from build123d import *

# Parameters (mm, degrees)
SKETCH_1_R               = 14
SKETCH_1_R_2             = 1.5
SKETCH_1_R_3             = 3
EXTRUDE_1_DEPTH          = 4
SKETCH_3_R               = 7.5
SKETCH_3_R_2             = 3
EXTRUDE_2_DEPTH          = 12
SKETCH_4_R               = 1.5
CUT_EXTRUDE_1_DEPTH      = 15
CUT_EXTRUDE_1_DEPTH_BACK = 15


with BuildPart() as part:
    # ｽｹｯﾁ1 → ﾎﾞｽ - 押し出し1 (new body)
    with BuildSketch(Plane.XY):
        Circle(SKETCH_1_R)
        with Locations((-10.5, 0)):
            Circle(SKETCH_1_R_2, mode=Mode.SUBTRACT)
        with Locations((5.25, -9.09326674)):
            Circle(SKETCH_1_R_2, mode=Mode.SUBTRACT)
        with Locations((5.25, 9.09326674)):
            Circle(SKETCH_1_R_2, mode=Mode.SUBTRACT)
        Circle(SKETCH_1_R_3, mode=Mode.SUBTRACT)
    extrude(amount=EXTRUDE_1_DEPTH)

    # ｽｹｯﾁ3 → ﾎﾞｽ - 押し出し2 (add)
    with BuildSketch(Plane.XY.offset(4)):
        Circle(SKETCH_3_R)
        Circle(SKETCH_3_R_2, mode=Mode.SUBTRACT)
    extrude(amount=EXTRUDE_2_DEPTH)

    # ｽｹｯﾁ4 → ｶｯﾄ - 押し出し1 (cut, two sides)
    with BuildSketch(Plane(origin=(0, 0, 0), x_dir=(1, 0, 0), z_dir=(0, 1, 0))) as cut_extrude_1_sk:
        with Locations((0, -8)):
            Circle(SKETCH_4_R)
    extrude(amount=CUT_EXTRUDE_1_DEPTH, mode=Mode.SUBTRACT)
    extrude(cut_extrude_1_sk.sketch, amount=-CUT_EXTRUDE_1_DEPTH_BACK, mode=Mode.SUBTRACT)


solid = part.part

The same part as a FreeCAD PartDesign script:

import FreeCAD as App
import Part
import Sketcher
from FreeCAD import Vector
Q = App.Units.Quantity

doc = App.newDocument("Part")
body = doc.addObject("PartDesign::Body", "Body")

# Sketch on XY plane
sketch1 = body.newObject("Sketcher::SketchObject", "Sketch")
sketch1.AttachmentSupport = (doc.getObject("XY_Plane"), [""])
sketch1.MapMode = "FlatFace"
sketch1.addGeometry(Part.Circle(Vector(0, 0, 0), Vector(0, 0, 1), 14), False)
sketch1.addGeometry(Part.Circle(Vector(5.2, -9.1, 0), Vector(0, 0, 1), 1.5), False)
sketch1.addGeometry(Part.Circle(Vector(-10.5, 0, 0), Vector(0, 0, 1), 1.5), False)
sketch1.addGeometry(Part.Circle(Vector(0, 0, 0), Vector(0, 0, 1), 3), False)
sketch1.addGeometry(Part.Circle(Vector(5.2, 9.1, 0), Vector(0, 0, 1), 1.5), False)
sketch1.addConstraint(Sketcher.Constraint("Coincident", 0, 3, -1, 1))
sketch1.addConstraint(Sketcher.Constraint("Coincident", 3, 3, -1, 1))
sketch1.addConstraint(Sketcher.Constraint("Equal", 1, 2))
sketch1.addConstraint(Sketcher.Constraint("Equal", 2, 4))
sketch1.addConstraint(Sketcher.Constraint("Symmetric", 1, 3, 4, 3, -1))
sketch1.addConstraint(Sketcher.Constraint("PointOnObject", 2, 3, -1))
sketch1.addConstraint(Sketcher.Constraint("Diameter", 0, Q("28 mm")))
sketch1.addConstraint(Sketcher.Constraint("Diameter", 1, Q("3 mm")))
sketch1.addConstraint(Sketcher.Constraint("Diameter", 3, Q("6 mm")))
sketch1.addConstraint(Sketcher.Constraint("DistanceX", 2, 3, -1, 1, Q("10.5 mm")))
sketch1.addConstraint(Sketcher.Constraint("DistanceX", -1, 1, 1, 3, Q("5.25 mm")))
sketch1.addConstraint(Sketcher.Constraint("DistanceY", 1, 3, -1, 1, Q("9.093267 mm")))
pad1 = body.newObject("PartDesign::Pad", "Pad")
pad1.Profile = sketch1
pad1.Length = 4

# Sketch on XY plane
sketch2 = body.newObject("Sketcher::SketchObject", "Sketch001")
sketch2.AttachmentSupport = (doc.getObject("XY_Plane"), [""])
sketch2.MapMode = "FlatFace"
sketch2.AttachmentOffset = App.Placement(Vector(0, 0, 4), App.Rotation())
sketch2.addGeometry(Part.Circle(Vector(0, 0, 0), Vector(0, 0, 1), 7.5), False)
sketch2.addGeometry(Part.Circle(Vector(0, 0, 0), Vector(0, 0, 1), 3), False)
sketch2.addConstraint(Sketcher.Constraint("Coincident", 0, 3, -1, 1))
sketch2.addConstraint(Sketcher.Constraint("Coincident", 1, 3, -1, 1))
sketch2.addConstraint(Sketcher.Constraint("Diameter", 0, Q("15 mm")))
sketch2.addConstraint(Sketcher.Constraint("Diameter", 1, Q("6 mm")))
pad2 = body.newObject("PartDesign::Pad", "Pad001")
pad2.Profile = sketch2
pad2.Length = 12

# Sketch on XZ plane
sketch3 = body.newObject("Sketcher::SketchObject", "Sketch002")
sketch3.AttachmentSupport = (doc.getObject("XZ_Plane"), [""])
sketch3.MapMode = "FlatFace"
sketch3.addGeometry(Part.Circle(Vector(0, 8, 0), Vector(0, 0, 1), 1.5), False)
sketch3.addConstraint(Sketcher.Constraint("PointOnObject", 0, 3, -2))
sketch3.addConstraint(Sketcher.Constraint("Diameter", 0, Q("3 mm")))
sketch3.addConstraint(Sketcher.Constraint("DistanceY", -1, 1, 0, 3, Q("8 mm")))
pocket1 = body.newObject("PartDesign::Pocket", "Pocket")
pocket1.Profile = sketch3
pocket1.Type = "ThroughAll"
pocket1.Midplane = True

doc.recompute()
